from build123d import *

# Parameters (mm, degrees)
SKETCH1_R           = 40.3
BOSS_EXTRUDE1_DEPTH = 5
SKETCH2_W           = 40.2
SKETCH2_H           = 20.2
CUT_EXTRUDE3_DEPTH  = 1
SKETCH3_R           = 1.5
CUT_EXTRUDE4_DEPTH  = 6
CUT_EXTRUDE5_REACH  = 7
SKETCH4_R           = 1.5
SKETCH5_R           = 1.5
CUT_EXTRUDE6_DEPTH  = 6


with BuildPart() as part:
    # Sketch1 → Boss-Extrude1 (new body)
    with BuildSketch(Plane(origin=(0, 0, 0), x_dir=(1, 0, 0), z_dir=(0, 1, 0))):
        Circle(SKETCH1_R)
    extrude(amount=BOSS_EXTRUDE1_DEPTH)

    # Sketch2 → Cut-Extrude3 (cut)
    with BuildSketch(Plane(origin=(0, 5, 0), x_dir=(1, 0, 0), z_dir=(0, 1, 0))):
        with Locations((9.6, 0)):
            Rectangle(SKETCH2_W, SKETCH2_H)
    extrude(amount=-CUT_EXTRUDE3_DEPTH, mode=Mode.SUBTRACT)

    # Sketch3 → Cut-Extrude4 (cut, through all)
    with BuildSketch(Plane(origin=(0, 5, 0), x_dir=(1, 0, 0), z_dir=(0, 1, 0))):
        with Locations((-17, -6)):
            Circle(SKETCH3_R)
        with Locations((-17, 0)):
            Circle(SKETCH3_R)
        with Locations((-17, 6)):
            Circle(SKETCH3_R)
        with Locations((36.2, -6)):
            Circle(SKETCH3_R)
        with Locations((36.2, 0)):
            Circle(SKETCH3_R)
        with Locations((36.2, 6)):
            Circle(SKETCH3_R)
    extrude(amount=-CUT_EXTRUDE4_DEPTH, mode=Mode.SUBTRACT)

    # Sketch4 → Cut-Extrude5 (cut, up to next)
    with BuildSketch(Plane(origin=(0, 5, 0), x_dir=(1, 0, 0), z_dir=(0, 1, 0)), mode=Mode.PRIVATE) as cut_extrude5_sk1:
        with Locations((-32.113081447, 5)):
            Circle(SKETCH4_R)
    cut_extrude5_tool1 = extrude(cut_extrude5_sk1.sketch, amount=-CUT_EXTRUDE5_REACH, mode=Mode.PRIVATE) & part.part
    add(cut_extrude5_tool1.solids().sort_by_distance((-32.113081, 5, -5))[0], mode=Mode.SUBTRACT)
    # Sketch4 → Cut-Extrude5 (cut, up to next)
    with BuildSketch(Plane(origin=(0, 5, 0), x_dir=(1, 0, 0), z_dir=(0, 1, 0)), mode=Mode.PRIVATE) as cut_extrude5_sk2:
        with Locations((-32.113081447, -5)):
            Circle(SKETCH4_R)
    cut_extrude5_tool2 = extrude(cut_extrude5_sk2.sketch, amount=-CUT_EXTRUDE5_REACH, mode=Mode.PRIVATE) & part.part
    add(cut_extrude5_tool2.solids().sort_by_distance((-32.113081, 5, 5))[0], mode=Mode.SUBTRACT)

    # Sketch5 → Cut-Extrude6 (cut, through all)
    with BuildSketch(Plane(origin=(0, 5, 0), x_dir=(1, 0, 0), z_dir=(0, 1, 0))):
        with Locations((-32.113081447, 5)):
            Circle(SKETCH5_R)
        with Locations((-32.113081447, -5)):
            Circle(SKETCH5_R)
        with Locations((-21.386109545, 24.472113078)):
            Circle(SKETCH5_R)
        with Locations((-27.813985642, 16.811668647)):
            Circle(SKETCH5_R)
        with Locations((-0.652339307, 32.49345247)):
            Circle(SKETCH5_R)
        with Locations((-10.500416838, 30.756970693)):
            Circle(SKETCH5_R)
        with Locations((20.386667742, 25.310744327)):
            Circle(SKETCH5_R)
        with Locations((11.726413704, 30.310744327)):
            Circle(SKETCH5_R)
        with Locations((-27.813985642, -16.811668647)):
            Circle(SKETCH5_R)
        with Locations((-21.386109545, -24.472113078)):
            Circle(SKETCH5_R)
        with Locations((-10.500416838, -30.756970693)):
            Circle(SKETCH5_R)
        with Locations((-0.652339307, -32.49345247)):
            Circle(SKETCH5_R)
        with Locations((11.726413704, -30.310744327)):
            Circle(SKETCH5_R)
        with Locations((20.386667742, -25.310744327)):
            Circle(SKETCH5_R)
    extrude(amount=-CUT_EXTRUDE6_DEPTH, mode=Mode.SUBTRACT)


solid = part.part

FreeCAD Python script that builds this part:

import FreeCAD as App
import Part
import Sketcher

doc = App.newDocument("Part")
body = doc.addObject("PartDesign::Body", "Body")

sketch1 = body.newObject("Sketcher::SketchObject", "Sketch")
sketch1.AttachmentSupport = (doc.getObject("XZ_Plane"), [""])
sketch1.MapMode = "FlatFace"
sketch1.addGeometry(Part.Circle(App.Vector(0, 0, 0), App.Vector(0, 0, 1), 40), False)
sketch1.addConstraint([
    Sketcher.Constraint("Coincident", 0, 3, -1, 1),
    Sketcher.Constraint("Diameter", 0, 80.6),
])
pad1 = body.newObject("PartDesign::Pad", "Pad")
pad1.Profile = sketch1
pad1.Length = 5
pad1.Reversed = True

sketch2 = body.newObject("Sketcher::SketchObject", "Sketch001")
sketch2.AttachmentSupport = (doc.getObject("XZ_Plane"), [""])
sketch2.MapMode = "FlatFace"
sketch2.AttachmentOffset = App.Placement(App.Vector(0, 0, -5), App.Rotation())
sketch2.addGeometry([
    Part.LineSegment(App.Vector(-10, -10, 0), App.Vector(-10, 10, 0)),
    Part.LineSegment(App.Vector(-10, 10, 0), App.Vector(30, 10, 0)),
    Part.LineSegment(App.Vector(30, 10, 0), App.Vector(30, -10, 0)),
    Part.LineSegment(App.Vector(30, -10, 0), App.Vector(-10, -10, 0)),
], False)
sketch2.addConstraint([
    Sketcher.Constraint("Coincident", 0, 2, 1, 1),
    Sketcher.Constraint("Coincident", 1, 2, 2, 1),
    Sketcher.Constraint("Coincident", 2, 2, 3, 1),
    Sketcher.Constraint("Coincident", 3, 2, 0, 1),
    Sketcher.Constraint("Vertical", 0),
    Sketcher.Constraint("Horizontal", 1),
    Sketcher.Constraint("Vertical", 2),
    Sketcher.Constraint("Horizontal", 3),
    Sketcher.Constraint("DistanceX", 1, 1, 1, 2, 40.2),
    Sketcher.Constraint("DistanceY", 0, 1, 0, 2, 20.2),
    Sketcher.Constraint("DistanceX", 0, 2, -1, 1, 10.5),
    Sketcher.Constraint("DistanceY", -1, 1, 0, 2, 10.1),
])
pocket1 = body.newObject("PartDesign::Pocket", "Pocket")
pocket1.Profile = sketch2
pocket1.Length = 1
pocket1.Reversed = True

sketch3 = body.newObject("Sketcher::SketchObject", "Sketch002")
sketch3.AttachmentSupport = (doc.getObject("XZ_Plane"), [""])
sketch3.MapMode = "FlatFace"
sketch3.AttachmentOffset = App.Placement(App.Vector(0, 0, -5), App.Rotation())
sketch3.addGeometry([
    Part.Circle(App.Vector(-17, 6, 0), App.Vector(0, 0, 1), 1.5),
    Part.Circle(App.Vector(-17, 0, 0), App.Vector(0, 0, 1), 1.5),
    Part.Circle(App.Vector(-17, -6, 0), App.Vector(0, 0, 1), 1.5),
    Part.Circle(App.Vector(36.2, 6, 0), App.Vector(0, 0, 1), 1.5),
    Part.Circle(App.Vector(36.2, 0, 0), App.Vector(0, 0, 1), 1.5),
    Part.Circle(App.Vector(36.2, -6, 0), App.Vector(0, 0, 1), 1.5),
], False)
sketch3.addConstraint([
    Sketcher.Constraint("Equal", 0, 1),
    Sketcher.Constraint("Equal", 1, 2),
    Sketcher.Constraint("Equal", 2, 3),
    Sketcher.Constraint("Equal", 3, 4),
    Sketcher.Constraint("Equal", 4, 5),
    Sketcher.Constraint("Symmetric", 0, 3, 2, 3, -1),
    Sketcher.Constraint("Symmetric", 3, 3, 5, 3, -1),
    Sketcher.Constraint("PointOnObject", 1, 3, -1),
    Sketcher.Constraint("PointOnObject", 4, 3, -1),
    Sketcher.Constraint("Horizontal", 0, 3, 3, 3),
    Sketcher.Constraint("Vertical", 0, 3, 1, 3),
    Sketcher.Constraint("Vertical", 3, 3, 4, 3),
    Sketcher.Constraint("Diameter", 0, 3.0),
    Sketcher.Constraint("DistanceX", 0, 3, -1, 1, 17.0),
    Sketcher.Constraint("DistanceY", -1, 1, 0, 3, 6.0),
    Sketcher.Constraint("DistanceX", -1, 1, 3, 3, 36.2),
])
pocket2 = body.newObject("PartDesign::Pocket", "Pocket001")
pocket2.Profile = sketch3
pocket2.Type = "ThroughAll"
pocket2.Reversed = True

sketch4 = body.newObject("Sketcher::SketchObject", "Sketch003")
sketch4.AttachmentSupport = (doc.getObject("XZ_Plane"), [""])
sketch4.MapMode = "FlatFace"
sketch4.AttachmentOffset = App.Placement(App.Vector(0, 0, -5), App.Rotation())
sketch4.addGeometry(Part.Circle(App.Vector(-32.1, -5, 0), App.Vector(0, 0, 1), 1.5), False)
sketch4.addConstraint([
    Sketcher.Constraint("Diameter", 0, 3.0),
    Sketcher.Constraint("DistanceY", 0, 3, -1, 1, 5.0),
    Sketcher.Constraint("DistanceX", 0, 3, -1, 1, 32.113081),
])
pocket3 = body.newObject("PartDesign::Pocket", "Pocket002")
pocket3.Profile = sketch4
pocket3.Type = "UpToFirst"
pocket3.Reversed = True

sketch5 = body.newObject("Sketcher::SketchObject", "Sketch004")
sketch5.AttachmentSupport = (doc.getObject("XZ_Plane"), [""])
sketch5.MapMode = "FlatFace"
sketch5.AttachmentOffset = App.Placement(App.Vector(0, 0, -5), App.Rotation())
sketch5.addGeometry(Part.Circle(App.Vector(-32.1, 5, 0), App.Vector(0, 0, 1), 1.5), False)
sketch5.addConstraint([
    Sketcher.Constraint("Diameter", 0, 3.0),
    Sketcher.Constraint("DistanceY", -1, 1, 0, 3, 5.0),
    Sketcher.Constraint("DistanceX", 0, 3, -1, 1, 32.113081),
])
pocket4 = body.newObject("PartDesign::Pocket", "Pocket003")
pocket4.Profile = sketch5
pocket4.Type = "UpToFirst"
pocket4.Reversed = True

sketch6 = body.newObject("Sketcher::SketchObject", "Sketch005")
sketch6.AttachmentSupport = (doc.getObject("XZ_Plane"), [""])
sketch6.MapMode = "FlatFace"
sketch6.AttachmentOffset = App.Placement(App.Vector(0, 0, -5), App.Rotation())
sketch6.addGeometry([
    Part.Circle(App.Vector(-32.1, -5, 0), App.Vector(0, 0, 1), 1.5),
    Part.Circle(App.Vector(-32.1, 5, 0), App.Vector(0, 0, 1), 1.5),
    Part.Circle(App.Vector(-21.4, -24.5, 0), App.Vector(0, 0, 1), 1.5),
    Part.Circle(App.Vector(-27.8, -16.8, 0), App.Vector(0, 0, 1), 1.5),
    Part.Circle(App.Vector(-0.7, -32.5, 0), App.Vector(0, 0, 1), 1.5),
    Part.Circle(App.Vector(-10.5, -30.8, 0), App.Vector(0, 0, 1), 1.5),
    Part.Circle(App.Vector(20.4, -25.3, 0), App.Vector(0, 0, 1), 1.5),
    Part.Circle(App.Vector(11.7, -30.3, 0), App.Vector(0, 0, 1), 1.5),
    Part.Circle(App.Vector(-27.8, 16.8, 0), App.Vector(0, 0, 1), 1.5),
    Part.Circle(App.Vector(-21.4, 24.5, 0), App.Vector(0, 0, 1), 1.5),
    Part.Circle(App.Vector(-10.5, 30.8, 0), App.Vector(0, 0, 1), 1.5),
    Part.Circle(App.Vector(-0.7, 32.5, 0), App.Vector(0, 0, 1), 1.5),
    Part.Circle(App.Vector(11.7, 30.3, 0), App.Vector(0, 0, 1), 1.5),
    Part.Circle(App.Vector(20.4, 25.3, 0), App.Vector(0, 0, 1), 1.5),
], False)
sketch6.addConstraint([
    Sketcher.Constraint("Equal", 0, 1),
    Sketcher.Constraint("Equal", 1, 2),
    Sketcher.Constraint("Equal", 2, 3),
    Sketcher.Constraint("Equal", 3, 4),
    Sketcher.Constraint("Equal", 4, 5),
    Sketcher.Constraint("Equal", 5, 6),
    Sketcher.Constraint("Equal", 6, 7),
    Sketcher.Constraint("Equal", 7, 8),
    Sketcher.Constraint("Equal", 8, 9),
    Sketcher.Constraint("Equal", 9, 10),
    Sketcher.Constraint("Equal", 10, 11),
    Sketcher.Constraint("Equal", 11, 12),
    Sketcher.Constraint("Equal", 12, 13),
    Sketcher.Constraint("Symmetric", 0, 3, 1, 3, -1),
    Sketcher.Constraint("Symmetric", 3, 3, 8, 3, -1),
    Sketcher.Constraint("Symmetric", 2, 3, 9, 3, -1),
    Sketcher.Constraint("Symmetric", 5, 3, 10, 3, -1),
    Sketcher.Constraint("Symmetric", 4, 3, 11, 3, -1),
    Sketcher.Constraint("Symmetric", 7, 3, 12, 3, -1),
    Sketcher.Constraint("Symmetric", 6, 3, 13, 3, -1),
    Sketcher.Constraint("Diameter", 0, 3.0),
    Sketcher.Constraint("DistanceY", 0, 3, -1, 1, 5.0),
    Sketcher.Constraint("DistanceY", 7, 3, 6, 3, 5.0),
    Sketcher.Constraint("DistanceX", 3, 3, 7, 3, 39.540399),
    Sketcher.Constraint("DistanceX", 0, 3, -1, 1, 32.113081),
    Sketcher.Constraint("DistanceX", 2, 3, -1, 1, 21.38611),
    Sketcher.Constraint("DistanceY", 3, 3, -1, 1, 16.811669),
    Sketcher.Constraint("DistanceX", 4, 3, -1, 1, 0.652339),
    Sketcher.Constraint("DistanceY", 5, 3, -1, 1, 30.756971),
    Sketcher.Constraint("DistanceY", 4, 3, 2, 3, 8.021339),
    Sketcher.Constraint("DistanceY", 4, 3, 5, 3, 1.736482),
    Sketcher.Constraint("DistanceX", 3, 3, 5, 3, 17.313569),
    Sketcher.Constraint("DistanceY", 4, 3, 6, 3, 7.182708),
    Sketcher.Constraint("DistanceX", 0, 3, 6, 3, 52.499749),
    Sketcher.Constraint("DistanceX", 3, 3, -1, 1, 27.813986),
])
pocket5 = body.newObject("PartDesign::Pocket", "Pocket004")
pocket5.Profile = sketch6
pocket5.Type = "ThroughAll"
pocket5.Reversed = True

doc.recompute()
